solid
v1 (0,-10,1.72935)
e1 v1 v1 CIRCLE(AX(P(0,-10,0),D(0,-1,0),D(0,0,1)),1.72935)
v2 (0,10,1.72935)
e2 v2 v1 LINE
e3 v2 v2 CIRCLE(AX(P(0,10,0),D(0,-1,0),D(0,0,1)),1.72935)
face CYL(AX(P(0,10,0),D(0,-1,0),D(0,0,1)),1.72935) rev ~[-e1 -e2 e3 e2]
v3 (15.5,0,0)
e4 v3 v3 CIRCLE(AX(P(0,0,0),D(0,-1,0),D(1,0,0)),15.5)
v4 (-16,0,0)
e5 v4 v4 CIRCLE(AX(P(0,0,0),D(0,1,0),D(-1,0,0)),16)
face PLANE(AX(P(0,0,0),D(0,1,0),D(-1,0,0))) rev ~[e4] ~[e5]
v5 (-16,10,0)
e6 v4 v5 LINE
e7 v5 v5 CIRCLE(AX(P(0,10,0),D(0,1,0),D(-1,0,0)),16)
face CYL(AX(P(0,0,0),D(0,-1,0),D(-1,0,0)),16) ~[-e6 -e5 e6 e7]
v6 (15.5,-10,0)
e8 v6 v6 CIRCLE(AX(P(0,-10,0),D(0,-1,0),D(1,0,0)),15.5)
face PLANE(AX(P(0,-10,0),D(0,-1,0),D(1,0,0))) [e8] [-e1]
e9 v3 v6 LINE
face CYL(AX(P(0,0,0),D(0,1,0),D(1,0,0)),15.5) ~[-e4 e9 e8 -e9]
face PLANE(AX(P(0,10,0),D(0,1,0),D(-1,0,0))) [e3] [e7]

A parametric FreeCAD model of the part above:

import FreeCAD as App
import Part
import Sketcher

V = App.Vector
Q = App.Units.Quantity

doc = App.newDocument("Part")
body = doc.addObject("PartDesign::Body", "Body")

sketch1 = body.newObject("Sketcher::SketchObject", "Sketch")
sketch1.AttachmentSupport = (doc.getObject("XZ_Plane"), [""])
sketch1.MapMode = "FlatFace"
sketch1.addGeometry(Part.Circle(V(0, 0, 0), V(0, 0, 1), 16), False)
sketch1.addConstraint([
    Sketcher.Constraint("Coincident", 0, 3, -1, 1),
    Sketcher.Constraint("Diameter", 0, Q("32 mm")),
])
pad1 = body.newObject("PartDesign::Pad", "Pad")
pad1.Profile = sketch1
pad1.Length = 10
pad1.Reversed = True

sketch2 = body.newObject("Sketcher::SketchObject", "Sketch001")
sketch2.AttachmentSupport = (doc.getObject("XZ_Plane"), [""])
sketch2.MapMode = "FlatFace"
sketch2.addGeometry(Part.Circle(V(0, 0, 0), V(0, 0, 1), 16), False)
sketch2.addConstraint([
    Sketcher.Constraint("Coincident", 0, 3, -1, 1),
    Sketcher.Constraint("Diameter", 0, Q("31 mm")),
])
pad2 = body.newObject("PartDesign::Pad", "Pad001")
pad2.Profile = sketch2
pad2.Length = 10

sketch3 = body.newObject("Sketcher::SketchObject", "Sketch002")
sketch3.AttachmentSupport = (doc.getObject("XZ_Plane"), [""])
sketch3.MapMode = "FlatFace"
sketch3.AttachmentOffset = App.Placement(V(0, 0, -10), App.Rotation())
sketch3.addGeometry(Part.Circle(V(0, 0, 0), V(0, 0, 1), 1.7), False)
sketch3.addConstraint([
    Sketcher.Constraint("Coincident", 0, 3, -1, 1),
    Sketcher.Constraint("Diameter", 0, Q("3.4587 mm")),
])
doc.recompute()
hole = body.newObject("PartDesign::Hole", "Hole")
hole.Profile = sketch3
hole.ThreadType = "None"
hole.Diameter = 3.4587
hole.DepthType = "ThroughAll"
hole.Reversed = True

doc.recompute()
